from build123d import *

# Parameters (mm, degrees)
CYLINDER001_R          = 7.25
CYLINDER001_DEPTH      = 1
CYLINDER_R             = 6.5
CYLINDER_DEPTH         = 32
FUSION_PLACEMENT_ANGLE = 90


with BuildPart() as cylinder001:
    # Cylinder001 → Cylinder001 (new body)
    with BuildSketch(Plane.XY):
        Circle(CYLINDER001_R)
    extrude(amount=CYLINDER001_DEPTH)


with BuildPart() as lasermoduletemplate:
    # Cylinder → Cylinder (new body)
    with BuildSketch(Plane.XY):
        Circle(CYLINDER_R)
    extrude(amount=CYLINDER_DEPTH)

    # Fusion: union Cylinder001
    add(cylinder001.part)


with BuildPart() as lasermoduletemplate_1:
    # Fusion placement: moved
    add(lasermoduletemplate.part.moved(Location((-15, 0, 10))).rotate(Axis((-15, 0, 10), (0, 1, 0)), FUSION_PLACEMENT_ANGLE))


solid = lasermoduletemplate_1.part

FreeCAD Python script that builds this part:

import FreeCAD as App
import Part
import Sketcher

doc = App.newDocument("Part")
body = doc.addObject("PartDesign::Body", "Body")

sketch1 = body.newObject("Sketcher::SketchObject", "Sketch")
sketch1.AttachmentSupport = (doc.getObject("XY_Plane"), [""])
sketch1.MapMode = "FlatFace"
sketch1.addGeometry(Part.Circle(App.Vector(0, 0, 0), App.Vector(0, 0, 1), 7.25), False)
sketch1.addConstraint([
    Sketcher.Constraint("Coincident", 0, 3, -1, 1),
    Sketcher.Constraint("Diameter", 0, 14.5),
])
pad1 = body.newObject("PartDesign::Pad", "Pad")
pad1.Profile = sketch1
pad1.Length = 1
body2 = doc.addObject("PartDesign::Body", "Body001")

sketch2 = body2.newObject("Sketcher::SketchObject", "Sketch001")
sketch2.AttachmentSupport = (doc.getObject("XY_Plane001"), [""])
sketch2.MapMode = "FlatFace"
sketch2.addGeometry(Part.Circle(App.Vector(0, 0, 0), App.Vector(0, 0, 1), 6.5), False)
sketch2.addConstraint([
    Sketcher.Constraint("Coincident", 0, 3, -1, 1),
    Sketcher.Constraint("Diameter", 0, 13.0),
])
pad2 = body2.newObject("PartDesign::Pad", "Pad001")
pad2.Profile = sketch2
pad2.Length = 32
doc.recompute()

boolean = body2.newObject("PartDesign::Boolean", "Boolean")
boolean.Type = "Fuse"
boolean.addObjects([body])
body3 = doc.addObject("PartDesign::Body", "Body002")
doc.recompute()

body2.Placement = App.Placement(App.Vector(-15, 0, 10), App.Rotation(App.Vector(0, 1, 0), 90))
boolean2 = body3.newObject("PartDesign::Boolean", "Boolean001")
boolean2.Type = "Fuse"
boolean2.addObjects([body2])

doc.recompute()
